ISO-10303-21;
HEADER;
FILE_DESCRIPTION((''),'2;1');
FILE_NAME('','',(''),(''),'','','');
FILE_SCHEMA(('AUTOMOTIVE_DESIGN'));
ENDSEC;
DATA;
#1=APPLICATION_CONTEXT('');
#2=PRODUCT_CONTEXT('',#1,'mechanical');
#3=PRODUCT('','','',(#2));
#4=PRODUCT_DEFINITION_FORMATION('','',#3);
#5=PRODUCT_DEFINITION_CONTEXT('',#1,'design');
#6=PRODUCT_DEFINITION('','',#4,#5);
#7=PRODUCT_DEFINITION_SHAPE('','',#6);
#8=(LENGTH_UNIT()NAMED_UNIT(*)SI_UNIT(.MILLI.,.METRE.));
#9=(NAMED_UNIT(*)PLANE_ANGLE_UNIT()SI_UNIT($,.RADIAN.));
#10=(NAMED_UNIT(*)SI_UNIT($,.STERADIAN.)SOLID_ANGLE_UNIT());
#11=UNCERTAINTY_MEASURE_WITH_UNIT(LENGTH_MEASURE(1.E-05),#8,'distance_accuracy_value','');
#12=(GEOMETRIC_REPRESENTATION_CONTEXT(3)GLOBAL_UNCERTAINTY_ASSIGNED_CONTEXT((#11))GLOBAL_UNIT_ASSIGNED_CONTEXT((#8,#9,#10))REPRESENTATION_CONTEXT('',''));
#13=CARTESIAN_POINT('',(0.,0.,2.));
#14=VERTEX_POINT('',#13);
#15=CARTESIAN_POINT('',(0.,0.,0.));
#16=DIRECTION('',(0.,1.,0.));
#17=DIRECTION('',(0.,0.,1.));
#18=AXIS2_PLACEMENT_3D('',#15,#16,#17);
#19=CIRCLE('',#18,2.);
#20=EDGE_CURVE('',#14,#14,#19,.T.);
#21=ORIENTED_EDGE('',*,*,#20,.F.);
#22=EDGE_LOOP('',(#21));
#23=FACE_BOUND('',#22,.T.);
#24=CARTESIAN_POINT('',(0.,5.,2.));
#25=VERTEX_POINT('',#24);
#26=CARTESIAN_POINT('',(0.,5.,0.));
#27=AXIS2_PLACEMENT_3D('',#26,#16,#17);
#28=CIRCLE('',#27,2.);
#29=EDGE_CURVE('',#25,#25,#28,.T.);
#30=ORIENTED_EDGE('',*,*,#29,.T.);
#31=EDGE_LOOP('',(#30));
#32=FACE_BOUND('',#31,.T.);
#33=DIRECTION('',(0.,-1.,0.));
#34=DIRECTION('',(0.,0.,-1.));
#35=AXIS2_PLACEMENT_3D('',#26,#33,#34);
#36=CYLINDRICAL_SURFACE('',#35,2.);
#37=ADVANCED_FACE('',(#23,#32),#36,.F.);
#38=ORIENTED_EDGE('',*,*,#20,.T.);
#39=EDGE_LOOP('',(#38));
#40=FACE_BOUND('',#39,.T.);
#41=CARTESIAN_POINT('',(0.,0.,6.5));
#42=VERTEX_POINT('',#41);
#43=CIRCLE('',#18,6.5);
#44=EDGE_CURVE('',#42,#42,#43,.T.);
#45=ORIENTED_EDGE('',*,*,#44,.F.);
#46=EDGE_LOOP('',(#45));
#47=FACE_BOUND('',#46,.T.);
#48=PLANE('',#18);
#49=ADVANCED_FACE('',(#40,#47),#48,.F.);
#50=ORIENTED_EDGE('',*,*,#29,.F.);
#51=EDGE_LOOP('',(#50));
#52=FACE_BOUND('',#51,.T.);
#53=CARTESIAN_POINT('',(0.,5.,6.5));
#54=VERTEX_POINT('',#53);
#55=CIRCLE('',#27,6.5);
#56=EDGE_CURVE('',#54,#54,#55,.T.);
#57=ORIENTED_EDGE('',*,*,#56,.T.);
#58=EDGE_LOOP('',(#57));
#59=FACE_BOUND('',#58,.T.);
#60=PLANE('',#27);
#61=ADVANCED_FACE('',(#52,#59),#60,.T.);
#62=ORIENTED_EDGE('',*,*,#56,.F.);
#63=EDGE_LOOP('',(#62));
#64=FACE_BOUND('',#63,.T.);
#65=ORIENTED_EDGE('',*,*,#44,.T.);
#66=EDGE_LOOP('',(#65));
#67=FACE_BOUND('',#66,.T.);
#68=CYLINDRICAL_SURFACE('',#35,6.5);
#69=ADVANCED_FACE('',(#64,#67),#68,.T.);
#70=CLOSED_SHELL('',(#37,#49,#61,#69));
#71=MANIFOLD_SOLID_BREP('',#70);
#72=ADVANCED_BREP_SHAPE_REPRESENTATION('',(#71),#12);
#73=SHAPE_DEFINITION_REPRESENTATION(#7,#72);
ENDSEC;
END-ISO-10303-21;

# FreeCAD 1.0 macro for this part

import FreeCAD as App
import Part
import Sketcher
Q = App.Units.Quantity

doc = App.newDocument("Part")
params = doc.addObject("Spreadsheet::Sheet", "Params")
for row, (alias, value) in enumerate([
    ("sketch1_diameter", "13 mm"),
    ("sketch1_diameter2", "4 mm"),
    ("pad1_length", "5 mm"),
], start=1):
    params.set(f"A{row}", alias)
    params.set(f"B{row}", "=" + value)
    params.setAlias(f"B{row}", alias)

body = doc.addObject("PartDesign::Body", "Body")

# Sketch on XZ plane
sketch1 = body.newObject("Sketcher::SketchObject", "Sketch")
sketch1.AttachmentSupport = (doc.getObject("XZ_Plane"), [""])
sketch1.MapMode = "FlatFace"
sketch1.addGeometry([
    Part.Circle(App.Vector(0, 0, 0), App.Vector(0, 0, 1), 6.5),
    Part.Circle(App.Vector(0, 0, 0), App.Vector(0, 0, 1), 2),
], False)
sketch1.addConstraint([
    Sketcher.Constraint("Coincident", 0, 3, -1, 1),
    Sketcher.Constraint("Coincident", 1, 3, -1, 1),
    Sketcher.Constraint("Diameter", 0, Q("13 mm")),
    Sketcher.Constraint("Diameter", 1, Q("4 mm")),
])
sketch1.setExpression("Constraints[2]", "Params.sketch1_diameter")
sketch1.setExpression("Constraints[3]", "Params.sketch1_diameter2")
pad1 = body.newObject("PartDesign::Pad", "Pad")
pad1.Profile = sketch1
pad1.setExpression("Length", "Params.pad1_length")
pad1.Reversed = True

doc.recompute()
